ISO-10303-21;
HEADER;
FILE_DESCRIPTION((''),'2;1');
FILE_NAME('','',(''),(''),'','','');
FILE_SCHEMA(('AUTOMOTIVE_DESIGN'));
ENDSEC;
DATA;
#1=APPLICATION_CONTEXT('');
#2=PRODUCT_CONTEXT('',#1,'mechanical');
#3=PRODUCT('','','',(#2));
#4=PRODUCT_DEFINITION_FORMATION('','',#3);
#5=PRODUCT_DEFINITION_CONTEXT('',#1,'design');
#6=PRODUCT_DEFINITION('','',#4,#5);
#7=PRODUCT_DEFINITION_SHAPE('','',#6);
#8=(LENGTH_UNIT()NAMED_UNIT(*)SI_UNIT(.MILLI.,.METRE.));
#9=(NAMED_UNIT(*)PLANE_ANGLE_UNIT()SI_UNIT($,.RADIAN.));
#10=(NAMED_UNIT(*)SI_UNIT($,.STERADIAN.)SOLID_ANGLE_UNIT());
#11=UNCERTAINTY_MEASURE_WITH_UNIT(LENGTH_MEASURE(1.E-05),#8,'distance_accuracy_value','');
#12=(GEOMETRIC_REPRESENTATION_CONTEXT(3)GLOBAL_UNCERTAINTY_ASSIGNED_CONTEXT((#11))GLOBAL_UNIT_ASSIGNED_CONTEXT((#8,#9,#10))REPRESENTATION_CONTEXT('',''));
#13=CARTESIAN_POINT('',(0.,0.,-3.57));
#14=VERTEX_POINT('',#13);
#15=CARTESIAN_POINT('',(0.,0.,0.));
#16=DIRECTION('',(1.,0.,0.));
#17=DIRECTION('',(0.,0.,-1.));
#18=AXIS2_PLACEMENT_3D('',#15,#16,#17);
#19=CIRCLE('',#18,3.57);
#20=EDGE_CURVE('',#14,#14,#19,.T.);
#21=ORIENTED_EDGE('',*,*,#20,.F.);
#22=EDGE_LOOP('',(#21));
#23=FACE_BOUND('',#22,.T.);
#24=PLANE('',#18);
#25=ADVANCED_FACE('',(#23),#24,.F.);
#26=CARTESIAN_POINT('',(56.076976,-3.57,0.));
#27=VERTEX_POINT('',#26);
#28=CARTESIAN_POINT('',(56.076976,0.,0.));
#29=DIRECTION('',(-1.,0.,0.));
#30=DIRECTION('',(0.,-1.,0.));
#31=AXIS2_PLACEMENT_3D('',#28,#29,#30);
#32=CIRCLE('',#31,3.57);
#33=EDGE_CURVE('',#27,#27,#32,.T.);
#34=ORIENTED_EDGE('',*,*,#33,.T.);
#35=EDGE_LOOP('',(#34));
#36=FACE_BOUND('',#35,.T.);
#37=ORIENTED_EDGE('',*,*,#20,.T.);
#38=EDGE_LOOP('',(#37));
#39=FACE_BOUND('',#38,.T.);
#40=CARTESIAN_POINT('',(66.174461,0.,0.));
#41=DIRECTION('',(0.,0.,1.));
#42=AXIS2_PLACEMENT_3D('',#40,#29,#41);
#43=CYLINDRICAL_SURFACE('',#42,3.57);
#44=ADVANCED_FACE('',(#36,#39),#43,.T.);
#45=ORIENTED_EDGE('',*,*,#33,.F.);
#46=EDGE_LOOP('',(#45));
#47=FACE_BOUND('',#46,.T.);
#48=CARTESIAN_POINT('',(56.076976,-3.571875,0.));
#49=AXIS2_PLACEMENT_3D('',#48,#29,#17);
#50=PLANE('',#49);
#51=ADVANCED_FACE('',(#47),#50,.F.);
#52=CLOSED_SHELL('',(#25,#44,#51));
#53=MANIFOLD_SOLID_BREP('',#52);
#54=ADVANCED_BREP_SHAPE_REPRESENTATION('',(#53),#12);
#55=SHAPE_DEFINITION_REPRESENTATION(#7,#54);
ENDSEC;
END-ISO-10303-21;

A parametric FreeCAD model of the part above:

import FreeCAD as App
import Part
import Sketcher

V = App.Vector
Q = App.Units.Quantity

doc = App.newDocument("Part")
body = doc.addObject("PartDesign::Body", "Body")

sketch1 = doc.addObject("Sketcher::SketchObject", "Sketch")
body.addObject(sketch1)
sketch1.AttachmentSupport = (doc.YZ_Plane, [""])
sketch1.MapMode = "FlatFace"
sketch1.addGeometry(Part.Circle(V(0, 0, 0), V(0, 0, 1), 3.57), False)
sketch1.addConstraint([
    Sketcher.Constraint("Coincident", 0, 3, -1, 1),
    Sketcher.Constraint("Diameter", 0, Q("7.14 mm")),
])
pad1 = doc.addObject("PartDesign::Pad", "Pad")
body.addObject(pad1)
pad1.Profile = sketch1
pad1.Length = 56.076976

doc.recompute()
